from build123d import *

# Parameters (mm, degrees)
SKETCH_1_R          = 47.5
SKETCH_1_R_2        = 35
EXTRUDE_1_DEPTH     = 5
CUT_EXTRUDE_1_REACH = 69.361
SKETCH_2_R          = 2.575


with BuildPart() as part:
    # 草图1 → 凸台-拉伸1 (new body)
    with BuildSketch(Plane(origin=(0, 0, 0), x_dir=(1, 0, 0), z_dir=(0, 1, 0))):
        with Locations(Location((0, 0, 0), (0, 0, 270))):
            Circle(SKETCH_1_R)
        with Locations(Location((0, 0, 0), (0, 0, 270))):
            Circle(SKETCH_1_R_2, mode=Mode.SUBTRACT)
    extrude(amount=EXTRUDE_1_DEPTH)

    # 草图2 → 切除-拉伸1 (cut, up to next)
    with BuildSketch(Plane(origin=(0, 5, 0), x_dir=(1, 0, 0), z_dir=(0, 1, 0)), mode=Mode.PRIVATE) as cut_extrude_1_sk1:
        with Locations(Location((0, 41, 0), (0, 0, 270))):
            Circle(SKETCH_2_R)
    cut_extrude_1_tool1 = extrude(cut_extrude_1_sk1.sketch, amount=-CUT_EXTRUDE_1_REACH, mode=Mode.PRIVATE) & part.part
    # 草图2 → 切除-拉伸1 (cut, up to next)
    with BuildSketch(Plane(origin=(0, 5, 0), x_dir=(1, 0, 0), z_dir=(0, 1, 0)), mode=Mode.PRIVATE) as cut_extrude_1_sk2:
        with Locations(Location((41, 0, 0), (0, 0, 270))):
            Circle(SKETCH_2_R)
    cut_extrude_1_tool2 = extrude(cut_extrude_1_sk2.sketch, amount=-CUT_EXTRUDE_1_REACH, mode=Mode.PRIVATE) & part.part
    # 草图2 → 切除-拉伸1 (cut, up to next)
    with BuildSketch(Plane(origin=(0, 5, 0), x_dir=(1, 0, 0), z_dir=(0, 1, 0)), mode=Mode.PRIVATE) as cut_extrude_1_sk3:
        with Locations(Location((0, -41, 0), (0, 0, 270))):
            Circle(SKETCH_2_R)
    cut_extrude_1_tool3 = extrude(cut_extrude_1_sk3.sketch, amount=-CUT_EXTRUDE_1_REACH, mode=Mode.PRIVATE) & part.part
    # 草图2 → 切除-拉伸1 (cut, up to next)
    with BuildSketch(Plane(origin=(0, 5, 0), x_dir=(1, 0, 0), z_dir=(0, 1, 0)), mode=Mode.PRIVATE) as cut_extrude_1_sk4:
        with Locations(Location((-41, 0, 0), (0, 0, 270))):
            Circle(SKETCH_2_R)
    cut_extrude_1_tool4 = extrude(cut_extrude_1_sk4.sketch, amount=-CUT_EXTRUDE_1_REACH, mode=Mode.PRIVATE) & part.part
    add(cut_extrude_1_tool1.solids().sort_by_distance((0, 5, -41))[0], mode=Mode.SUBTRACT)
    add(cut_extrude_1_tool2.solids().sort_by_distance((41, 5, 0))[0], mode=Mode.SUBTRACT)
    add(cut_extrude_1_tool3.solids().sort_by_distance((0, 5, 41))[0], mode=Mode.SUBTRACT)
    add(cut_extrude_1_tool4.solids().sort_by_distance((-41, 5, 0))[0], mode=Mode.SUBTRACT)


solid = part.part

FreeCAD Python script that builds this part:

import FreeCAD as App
import Part
import Sketcher

V = App.Vector
Q = App.Units.Quantity

doc = App.newDocument("Part")
body = doc.addObject("PartDesign::Body", "Body")

# Sketch on XZ plane
sketch1 = doc.addObject("Sketcher::SketchObject", "Sketch")
body.addObject(sketch1)
sketch1.AttachmentSupport = (doc.XZ_Plane, [""])
sketch1.MapMode = "FlatFace"
sketch1.addGeometry([
    Part.Circle(V(0, 0, 0), V(0, 0, 1), 47.5),
    Part.Circle(V(0, 0, 0), V(0, 0, 1), 35),
], False)
sketch1.addConstraint([
    Sketcher.Constraint("Coincident", 0, 3, -1, 1),
    Sketcher.Constraint("Coincident", 1, 3, -1, 1),
    Sketcher.Constraint("Diameter", 0, Q("95 mm")),
    Sketcher.Constraint("Diameter", 1, Q("70 mm")),
])
pad1 = doc.addObject("PartDesign::Pad", "Pad")
body.addObject(pad1)
pad1.Profile = sketch1
pad1.Length = 5
pad1.Reversed = True

# Sketch on XZ plane
sketch2 = doc.addObject("Sketcher::SketchObject", "Sketch001")
body.addObject(sketch2)
sketch2.AttachmentSupport = (doc.XZ_Plane, [""])
sketch2.MapMode = "FlatFace"
sketch2.AttachmentOffset = App.Placement(V(0, 0, -5), App.Rotation())
sketch2.addGeometry(Part.Circle(V(0, -41, 0), V(0, 0, 1), 2.575), False)
sketch2.addConstraint([
    Sketcher.Constraint("PointOnObject", 0, 3, -2),
    Sketcher.Constraint("Diameter", 0, Q("5.15 mm")),
    Sketcher.Constraint("DistanceY", 0, 3, -1, 1, Q("41 mm")),
])
pocket1 = doc.addObject("PartDesign::Pocket", "Pocket")
body.addObject(pocket1)
pocket1.Profile = sketch2
pocket1.Type = "UpToFirst"
pocket1.Reversed = True

# Sketch on XZ plane
sketch3 = doc.addObject("Sketcher::SketchObject", "Sketch002")
body.addObject(sketch3)
sketch3.AttachmentSupport = (doc.XZ_Plane, [""])
sketch3.MapMode = "FlatFace"
sketch3.AttachmentOffset = App.Placement(V(0, 0, -5), App.Rotation())
sketch3.addGeometry(Part.Circle(V(41, 0, 0), V(0, 0, 1), 2.575), False)
sketch3.addConstraint([
    Sketcher.Constraint("PointOnObject", 0, 3, -1),
    Sketcher.Constraint("Diameter", 0, Q("5.15 mm")),
    Sketcher.Constraint("DistanceX", -1, 1, 0, 3, Q("41 mm")),
])
pocket2 = doc.addObject("PartDesign::Pocket", "Pocket001")
body.addObject(pocket2)
pocket2.Profile = sketch3
pocket2.Type = "UpToFirst"
pocket2.Reversed = True

# Sketch on XZ plane
sketch4 = doc.addObject("Sketcher::SketchObject", "Sketch003")
body.addObject(sketch4)
sketch4.AttachmentSupport = (doc.XZ_Plane, [""])
sketch4.MapMode = "FlatFace"
sketch4.AttachmentOffset = App.Placement(V(0, 0, -5), App.Rotation())
sketch4.addGeometry(Part.Circle(V(0, 41, 0), V(0, 0, 1), 2.575), False)
sketch4.addConstraint([
    Sketcher.Constraint("PointOnObject", 0, 3, -2),
    Sketcher.Constraint("Diameter", 0, Q("5.15 mm")),
    Sketcher.Constraint("DistanceY", -1, 1, 0, 3, Q("41 mm")),
])
pocket3 = doc.addObject("PartDesign::Pocket", "Pocket002")
body.addObject(pocket3)
pocket3.Profile = sketch4
pocket3.Type = "UpToFirst"
pocket3.Reversed = True

# Sketch on XZ plane
sketch5 = doc.addObject("Sketcher::SketchObject", "Sketch004")
body.addObject(sketch5)
sketch5.AttachmentSupport = (doc.XZ_Plane, [""])
sketch5.MapMode = "FlatFace"
sketch5.AttachmentOffset = App.Placement(V(0, 0, -5), App.Rotation())
sketch5.addGeometry(Part.Circle(V(-41, 0, 0), V(0, 0, 1), 2.575), False)
sketch5.addConstraint([
    Sketcher.Constraint("PointOnObject", 0, 3, -1),
    Sketcher.Constraint("Diameter", 0, Q("5.15 mm")),
    Sketcher.Constraint("DistanceX", 0, 3, -1, 1, Q("41 mm")),
])
pocket4 = doc.addObject("PartDesign::Pocket", "Pocket003")
body.addObject(pocket4)
pocket4.Profile = sketch5
pocket4.Type = "UpToFirst"
pocket4.Reversed = True

doc.recompute()
